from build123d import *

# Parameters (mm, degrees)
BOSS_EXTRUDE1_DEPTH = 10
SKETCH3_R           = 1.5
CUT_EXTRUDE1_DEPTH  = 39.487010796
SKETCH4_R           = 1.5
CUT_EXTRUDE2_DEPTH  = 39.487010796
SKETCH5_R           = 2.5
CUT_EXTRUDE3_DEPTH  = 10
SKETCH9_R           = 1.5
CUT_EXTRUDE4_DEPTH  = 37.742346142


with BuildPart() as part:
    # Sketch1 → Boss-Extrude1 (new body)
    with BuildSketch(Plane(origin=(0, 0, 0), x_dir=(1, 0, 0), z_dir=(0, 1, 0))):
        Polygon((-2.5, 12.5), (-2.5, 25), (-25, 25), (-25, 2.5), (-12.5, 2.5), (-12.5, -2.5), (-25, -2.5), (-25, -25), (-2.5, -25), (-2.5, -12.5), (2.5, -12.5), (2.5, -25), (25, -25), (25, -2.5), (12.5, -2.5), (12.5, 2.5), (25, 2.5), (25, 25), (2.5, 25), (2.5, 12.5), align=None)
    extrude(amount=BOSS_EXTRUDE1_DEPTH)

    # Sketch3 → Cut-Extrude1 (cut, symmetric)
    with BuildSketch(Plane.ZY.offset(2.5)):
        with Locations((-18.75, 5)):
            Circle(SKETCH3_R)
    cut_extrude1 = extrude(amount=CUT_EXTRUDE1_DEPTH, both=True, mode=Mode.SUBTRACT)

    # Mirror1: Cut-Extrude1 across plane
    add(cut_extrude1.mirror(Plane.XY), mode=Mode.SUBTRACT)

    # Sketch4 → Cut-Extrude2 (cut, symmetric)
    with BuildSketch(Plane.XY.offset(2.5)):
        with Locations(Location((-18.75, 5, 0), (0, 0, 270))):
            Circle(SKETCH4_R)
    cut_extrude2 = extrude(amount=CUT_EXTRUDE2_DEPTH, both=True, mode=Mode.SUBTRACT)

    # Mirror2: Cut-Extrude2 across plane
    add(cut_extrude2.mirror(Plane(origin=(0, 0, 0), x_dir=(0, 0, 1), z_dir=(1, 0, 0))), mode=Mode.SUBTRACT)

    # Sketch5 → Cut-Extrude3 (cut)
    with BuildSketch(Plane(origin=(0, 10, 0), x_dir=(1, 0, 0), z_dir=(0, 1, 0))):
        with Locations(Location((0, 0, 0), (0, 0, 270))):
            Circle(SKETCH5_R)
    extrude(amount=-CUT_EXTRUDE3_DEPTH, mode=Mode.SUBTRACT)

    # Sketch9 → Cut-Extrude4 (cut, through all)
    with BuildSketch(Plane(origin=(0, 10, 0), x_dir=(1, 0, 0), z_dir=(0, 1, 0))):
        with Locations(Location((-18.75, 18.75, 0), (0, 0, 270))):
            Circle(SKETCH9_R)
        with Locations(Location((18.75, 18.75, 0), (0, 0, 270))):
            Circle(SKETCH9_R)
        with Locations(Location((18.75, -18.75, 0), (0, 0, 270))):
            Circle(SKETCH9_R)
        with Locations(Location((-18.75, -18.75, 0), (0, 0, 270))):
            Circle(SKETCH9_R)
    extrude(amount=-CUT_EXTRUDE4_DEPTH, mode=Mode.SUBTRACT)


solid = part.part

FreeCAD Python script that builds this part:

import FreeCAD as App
import Part
import Sketcher


def add_polygon(sketch, points):
    """Adds a closed chain of lines whose ends are joined by coincident constraints."""
    first, n = sketch.GeometryCount, len(points)
    for a, b in zip(points, points[1:] + points[:1]):
        sketch.addGeometry(Part.LineSegment(App.Vector(*a, 0), App.Vector(*b, 0)), False)
    for i in range(n):
        sketch.addConstraint(Sketcher.Constraint("Coincident", first + i, 2, first + (i + 1) % n, 1))

doc = App.newDocument("Part")
params = doc.addObject("Spreadsheet::Sheet", "Params")
for row, (alias, value) in enumerate([
    ("sketch1_width", "5 mm"),
    ("sketch1_width2", "22.5 mm"),
    ("sketch1_width3", "12.5 mm"),
    ("pad1_length", "10 mm"),
    ("sketch2_diameter", "3 mm"),
    ("pocket1_length", "78.974022 mm"),
    ("sketch3_diameter", "3 mm"),
    ("pocket2_length", "78.974022 mm"),
    ("sketch4_diameter", "5 mm"),
    ("pocket3_length", "10 mm"),
    ("sketch5_diameter", "3 mm"),
], start=1):
    params.set(f"A{row}", alias)
    params.set(f"B{row}", "=" + value)
    params.setAlias(f"B{row}", alias)

body = doc.addObject("PartDesign::Body", "Body")

# Sketch on XZ plane
sketch1 = doc.addObject("Sketcher::SketchObject", "Sketch")
body.addObject(sketch1)
sketch1.AttachmentSupport = (doc.XZ_Plane, [""])
sketch1.MapMode = "FlatFace"
add_polygon(sketch1, [(-2, -12), (-2, -25), (-25, -25), (-25, -2), (-12, -2), (-12, 2), (-25, 2), (-25, 25), (-2, 25), (-2, 12), (2, 12), (2, 25), (25, 25), (25, 2), (12, 2), (12, -2), (25, -2), (25, -25), (2, -25), (2, -12)])  # lines 0-19
sketch1.addConstraint(Sketcher.Constraint("Vertical", 0))
sketch1.addConstraint(Sketcher.Constraint("Horizontal", 1))
sketch1.addConstraint(Sketcher.Constraint("Vertical", 2))
sketch1.addConstraint(Sketcher.Constraint("Horizontal", 3))
sketch1.addConstraint(Sketcher.Constraint("Vertical", 4))
sketch1.addConstraint(Sketcher.Constraint("Horizontal", 5))
sketch1.addConstraint(Sketcher.Constraint("Vertical", 6))
sketch1.addConstraint(Sketcher.Constraint("Horizontal", 7))
sketch1.addConstraint(Sketcher.Constraint("Vertical", 8))
sketch1.addConstraint(Sketcher.Constraint("Horizontal", 9))
sketch1.addConstraint(Sketcher.Constraint("Vertical", 10))
sketch1.addConstraint(Sketcher.Constraint("Horizontal", 11))
sketch1.addConstraint(Sketcher.Constraint("Vertical", 12))
sketch1.addConstraint(Sketcher.Constraint("Horizontal", 13))
sketch1.addConstraint(Sketcher.Constraint("Vertical", 14))
sketch1.addConstraint(Sketcher.Constraint("Horizontal", 15))
sketch1.addConstraint(Sketcher.Constraint("Vertical", 16))
sketch1.addConstraint(Sketcher.Constraint("Horizontal", 17))
sketch1.addConstraint(Sketcher.Constraint("Vertical", 18))
sketch1.addConstraint(Sketcher.Constraint("Horizontal", 19))
sketch1.addConstraint(Sketcher.Constraint("Symmetric", 0, 2, 10, 2, -1, 1))
sketch1.addConstraint(Sketcher.Constraint("Symmetric", 2, 2, 12, 2, -1, 1))
sketch1.addConstraint(Sketcher.Constraint("Symmetric", 4, 2, 14, 2, -1, 1))
sketch1.addConstraint(Sketcher.Constraint("Symmetric", 6, 2, 16, 2, -1, 1))
sketch1.addConstraint(Sketcher.Constraint("Symmetric", 8, 2, 18, 2, -1, 1))
sketch1.addConstraint(Sketcher.Constraint("Symmetric", 7, 2, 10, 2, -2))
sketch1.addConstraint(Sketcher.Constraint("Symmetric", 5, 2, 12, 2, -2))
sketch1.addConstraint(Sketcher.Constraint("Equal", 15, 0))
sketch1.addConstraint(Sketcher.Constraint("Equal", 17, 2))
sketch1.addConstraint(Sketcher.Constraint("Equal", 19, 4))
sketch1.addConstraint(Sketcher.Constraint("DistanceX", 9, 1, 9, 2, 5.0))
sketch1.addConstraint(Sketcher.Constraint("DistanceX", 1, 2, 1, 1, 22.5))
sketch1.addConstraint(Sketcher.Constraint("DistanceX", 3, 1, 3, 2, 12.5))
sketch1.setExpression("Constraints[50]", "Params.sketch1_width")
sketch1.setExpression("Constraints[51]", "Params.sketch1_width2")
sketch1.setExpression("Constraints[52]", "Params.sketch1_width3")
pad1 = doc.addObject("PartDesign::Pad", "Pad")
body.addObject(pad1)
pad1.Profile = sketch1
pad1.setExpression("Length", "Params.pad1_length")
pad1.Reversed = True

# Sketch on YZ plane
sketch2 = doc.addObject("Sketcher::SketchObject", "Sketch001")
body.addObject(sketch2)
sketch2.AttachmentSupport = (doc.YZ_Plane, [""])
sketch2.MapMode = "FlatFace"
sketch2.AttachmentOffset = App.Placement(App.Vector(0, 0, -2.5), App.Rotation())
sketch2.addGeometry(Part.Circle(App.Vector(5, -18.8, 0), App.Vector(0, 0, 1), 1.5), False)
sketch2.addConstraint(Sketcher.Constraint("Diameter", 0, 3.0))
sketch2.addConstraint(Sketcher.Constraint("DistanceX", -1, 1, 0, 3, 5.0))
sketch2.addConstraint(Sketcher.Constraint("DistanceY", 0, 3, -1, 1, 18.75))
sketch2.setExpression("Constraints[0]", "Params.sketch2_diameter")
pocket1 = doc.addObject("PartDesign::Pocket", "Pocket")
body.addObject(pocket1)
pocket1.Profile = sketch2
pocket1.setExpression("Length", "Params.pocket1_length")
pocket1.Midplane = True
doc.recompute()

mirrored = doc.addObject("PartDesign::Mirrored", "Mirrored")
body.addObject(mirrored)
mirrored.Originals = [pocket1]
mirrored.MirrorPlane = (doc.XY_Plane, [""])
body.Tip = mirrored

# Sketch on XY plane
sketch3 = doc.addObject("Sketcher::SketchObject", "Sketch002")
body.addObject(sketch3)
sketch3.AttachmentSupport = (doc.XY_Plane, [""])
sketch3.MapMode = "FlatFace"
sketch3.AttachmentOffset = App.Placement(App.Vector(0, 0, 2.5), App.Rotation())
sketch3.addGeometry(Part.Circle(App.Vector(-18.8, 5, 0), App.Vector(0, 0, 1), 1.5), False)
sketch3.addConstraint(Sketcher.Constraint("Diameter", 0, 3.0))
sketch3.addConstraint(Sketcher.Constraint("DistanceY", -1, 1, 0, 3, 5.0))
sketch3.addConstraint(Sketcher.Constraint("DistanceX", 0, 3, -1, 1, 18.75))
sketch3.setExpression("Constraints[0]", "Params.sketch3_diameter")
pocket2 = doc.addObject("PartDesign::Pocket", "Pocket001")
body.addObject(pocket2)
pocket2.Profile = sketch3
pocket2.setExpression("Length", "Params.pocket2_length")
pocket2.Midplane = True
doc.recompute()

mirrored2 = doc.addObject("PartDesign::Mirrored", "Mirrored001")
body.addObject(mirrored2)
mirrored2.Originals = [pocket2]
mirrored2.MirrorPlane = (doc.YZ_Plane, [""])
body.Tip = mirrored2

# Sketch on XZ plane
sketch4 = doc.addObject("Sketcher::SketchObject", "Sketch003")
body.addObject(sketch4)
sketch4.AttachmentSupport = (doc.XZ_Plane, [""])
sketch4.MapMode = "FlatFace"
sketch4.AttachmentOffset = App.Placement(App.Vector(0, 0, -10), App.Rotation())
sketch4.addGeometry(Part.Circle(App.Vector(0, 0, 0), App.Vector(0, 0, 1), 2.5), False)
sketch4.addConstraint(Sketcher.Constraint("Coincident", 0, 3, -1, 1))
sketch4.addConstraint(Sketcher.Constraint("Diameter", 0, 5.0))
sketch4.setExpression("Constraints[1]", "Params.sketch4_diameter")
pocket3 = doc.addObject("PartDesign::Pocket", "Pocket002")
body.addObject(pocket3)
pocket3.Profile = sketch4
pocket3.setExpression("Length", "Params.pocket3_length")
pocket3.Reversed = True

# Sketch on XZ plane
sketch5 = doc.addObject("Sketcher::SketchObject", "Sketch004")
body.addObject(sketch5)
sketch5.AttachmentSupport = (doc.XZ_Plane, [""])
sketch5.MapMode = "FlatFace"
sketch5.AttachmentOffset = App.Placement(App.Vector(0, 0, -10), App.Rotation())
sketch5.addGeometry(Part.Circle(App.Vector(-18.8, -18.8, 0), App.Vector(0, 0, 1), 1.5), False)
sketch5.addGeometry(Part.Circle(App.Vector(18.8, -18.8, 0), App.Vector(0, 0, 1), 1.5), False)
sketch5.addGeometry(Part.Circle(App.Vector(18.8, 18.8, 0), App.Vector(0, 0, 1), 1.5), False)
sketch5.addGeometry(Part.Circle(App.Vector(-18.8, 18.8, 0), App.Vector(0, 0, 1), 1.5), False)
sketch5.addConstraint(Sketcher.Constraint("Equal", 0, 1))
sketch5.addConstraint(Sketcher.Constraint("Equal", 1, 2))
sketch5.addConstraint(Sketcher.Constraint("Equal", 2, 3))
sketch5.addConstraint(Sketcher.Constraint("Symmetric", 0, 3, 2, 3, -1, 1))
sketch5.addConstraint(Sketcher.Constraint("Symmetric", 1, 3, 3, 3, -1, 1))
sketch5.addConstraint(Sketcher.Constraint("Symmetric", 0, 3, 1, 3, -2))
sketch5.addConstraint(Sketcher.Constraint("Diameter", 0, 3.0))
sketch5.addConstraint(Sketcher.Constraint("DistanceX", 0, 3, 1, 3, 37.5))
sketch5.addConstraint(Sketcher.Constraint("DistanceY", 1, 3, 2, 3, 37.5))
sketch5.setExpression("Constraints[6]", "Params.sketch5_diameter")
pocket4 = doc.addObject("PartDesign::Pocket", "Pocket003")
body.addObject(pocket4)
pocket4.Profile = sketch5
pocket4.Type = "ThroughAll"
pocket4.Reversed = True

doc.recompute()
